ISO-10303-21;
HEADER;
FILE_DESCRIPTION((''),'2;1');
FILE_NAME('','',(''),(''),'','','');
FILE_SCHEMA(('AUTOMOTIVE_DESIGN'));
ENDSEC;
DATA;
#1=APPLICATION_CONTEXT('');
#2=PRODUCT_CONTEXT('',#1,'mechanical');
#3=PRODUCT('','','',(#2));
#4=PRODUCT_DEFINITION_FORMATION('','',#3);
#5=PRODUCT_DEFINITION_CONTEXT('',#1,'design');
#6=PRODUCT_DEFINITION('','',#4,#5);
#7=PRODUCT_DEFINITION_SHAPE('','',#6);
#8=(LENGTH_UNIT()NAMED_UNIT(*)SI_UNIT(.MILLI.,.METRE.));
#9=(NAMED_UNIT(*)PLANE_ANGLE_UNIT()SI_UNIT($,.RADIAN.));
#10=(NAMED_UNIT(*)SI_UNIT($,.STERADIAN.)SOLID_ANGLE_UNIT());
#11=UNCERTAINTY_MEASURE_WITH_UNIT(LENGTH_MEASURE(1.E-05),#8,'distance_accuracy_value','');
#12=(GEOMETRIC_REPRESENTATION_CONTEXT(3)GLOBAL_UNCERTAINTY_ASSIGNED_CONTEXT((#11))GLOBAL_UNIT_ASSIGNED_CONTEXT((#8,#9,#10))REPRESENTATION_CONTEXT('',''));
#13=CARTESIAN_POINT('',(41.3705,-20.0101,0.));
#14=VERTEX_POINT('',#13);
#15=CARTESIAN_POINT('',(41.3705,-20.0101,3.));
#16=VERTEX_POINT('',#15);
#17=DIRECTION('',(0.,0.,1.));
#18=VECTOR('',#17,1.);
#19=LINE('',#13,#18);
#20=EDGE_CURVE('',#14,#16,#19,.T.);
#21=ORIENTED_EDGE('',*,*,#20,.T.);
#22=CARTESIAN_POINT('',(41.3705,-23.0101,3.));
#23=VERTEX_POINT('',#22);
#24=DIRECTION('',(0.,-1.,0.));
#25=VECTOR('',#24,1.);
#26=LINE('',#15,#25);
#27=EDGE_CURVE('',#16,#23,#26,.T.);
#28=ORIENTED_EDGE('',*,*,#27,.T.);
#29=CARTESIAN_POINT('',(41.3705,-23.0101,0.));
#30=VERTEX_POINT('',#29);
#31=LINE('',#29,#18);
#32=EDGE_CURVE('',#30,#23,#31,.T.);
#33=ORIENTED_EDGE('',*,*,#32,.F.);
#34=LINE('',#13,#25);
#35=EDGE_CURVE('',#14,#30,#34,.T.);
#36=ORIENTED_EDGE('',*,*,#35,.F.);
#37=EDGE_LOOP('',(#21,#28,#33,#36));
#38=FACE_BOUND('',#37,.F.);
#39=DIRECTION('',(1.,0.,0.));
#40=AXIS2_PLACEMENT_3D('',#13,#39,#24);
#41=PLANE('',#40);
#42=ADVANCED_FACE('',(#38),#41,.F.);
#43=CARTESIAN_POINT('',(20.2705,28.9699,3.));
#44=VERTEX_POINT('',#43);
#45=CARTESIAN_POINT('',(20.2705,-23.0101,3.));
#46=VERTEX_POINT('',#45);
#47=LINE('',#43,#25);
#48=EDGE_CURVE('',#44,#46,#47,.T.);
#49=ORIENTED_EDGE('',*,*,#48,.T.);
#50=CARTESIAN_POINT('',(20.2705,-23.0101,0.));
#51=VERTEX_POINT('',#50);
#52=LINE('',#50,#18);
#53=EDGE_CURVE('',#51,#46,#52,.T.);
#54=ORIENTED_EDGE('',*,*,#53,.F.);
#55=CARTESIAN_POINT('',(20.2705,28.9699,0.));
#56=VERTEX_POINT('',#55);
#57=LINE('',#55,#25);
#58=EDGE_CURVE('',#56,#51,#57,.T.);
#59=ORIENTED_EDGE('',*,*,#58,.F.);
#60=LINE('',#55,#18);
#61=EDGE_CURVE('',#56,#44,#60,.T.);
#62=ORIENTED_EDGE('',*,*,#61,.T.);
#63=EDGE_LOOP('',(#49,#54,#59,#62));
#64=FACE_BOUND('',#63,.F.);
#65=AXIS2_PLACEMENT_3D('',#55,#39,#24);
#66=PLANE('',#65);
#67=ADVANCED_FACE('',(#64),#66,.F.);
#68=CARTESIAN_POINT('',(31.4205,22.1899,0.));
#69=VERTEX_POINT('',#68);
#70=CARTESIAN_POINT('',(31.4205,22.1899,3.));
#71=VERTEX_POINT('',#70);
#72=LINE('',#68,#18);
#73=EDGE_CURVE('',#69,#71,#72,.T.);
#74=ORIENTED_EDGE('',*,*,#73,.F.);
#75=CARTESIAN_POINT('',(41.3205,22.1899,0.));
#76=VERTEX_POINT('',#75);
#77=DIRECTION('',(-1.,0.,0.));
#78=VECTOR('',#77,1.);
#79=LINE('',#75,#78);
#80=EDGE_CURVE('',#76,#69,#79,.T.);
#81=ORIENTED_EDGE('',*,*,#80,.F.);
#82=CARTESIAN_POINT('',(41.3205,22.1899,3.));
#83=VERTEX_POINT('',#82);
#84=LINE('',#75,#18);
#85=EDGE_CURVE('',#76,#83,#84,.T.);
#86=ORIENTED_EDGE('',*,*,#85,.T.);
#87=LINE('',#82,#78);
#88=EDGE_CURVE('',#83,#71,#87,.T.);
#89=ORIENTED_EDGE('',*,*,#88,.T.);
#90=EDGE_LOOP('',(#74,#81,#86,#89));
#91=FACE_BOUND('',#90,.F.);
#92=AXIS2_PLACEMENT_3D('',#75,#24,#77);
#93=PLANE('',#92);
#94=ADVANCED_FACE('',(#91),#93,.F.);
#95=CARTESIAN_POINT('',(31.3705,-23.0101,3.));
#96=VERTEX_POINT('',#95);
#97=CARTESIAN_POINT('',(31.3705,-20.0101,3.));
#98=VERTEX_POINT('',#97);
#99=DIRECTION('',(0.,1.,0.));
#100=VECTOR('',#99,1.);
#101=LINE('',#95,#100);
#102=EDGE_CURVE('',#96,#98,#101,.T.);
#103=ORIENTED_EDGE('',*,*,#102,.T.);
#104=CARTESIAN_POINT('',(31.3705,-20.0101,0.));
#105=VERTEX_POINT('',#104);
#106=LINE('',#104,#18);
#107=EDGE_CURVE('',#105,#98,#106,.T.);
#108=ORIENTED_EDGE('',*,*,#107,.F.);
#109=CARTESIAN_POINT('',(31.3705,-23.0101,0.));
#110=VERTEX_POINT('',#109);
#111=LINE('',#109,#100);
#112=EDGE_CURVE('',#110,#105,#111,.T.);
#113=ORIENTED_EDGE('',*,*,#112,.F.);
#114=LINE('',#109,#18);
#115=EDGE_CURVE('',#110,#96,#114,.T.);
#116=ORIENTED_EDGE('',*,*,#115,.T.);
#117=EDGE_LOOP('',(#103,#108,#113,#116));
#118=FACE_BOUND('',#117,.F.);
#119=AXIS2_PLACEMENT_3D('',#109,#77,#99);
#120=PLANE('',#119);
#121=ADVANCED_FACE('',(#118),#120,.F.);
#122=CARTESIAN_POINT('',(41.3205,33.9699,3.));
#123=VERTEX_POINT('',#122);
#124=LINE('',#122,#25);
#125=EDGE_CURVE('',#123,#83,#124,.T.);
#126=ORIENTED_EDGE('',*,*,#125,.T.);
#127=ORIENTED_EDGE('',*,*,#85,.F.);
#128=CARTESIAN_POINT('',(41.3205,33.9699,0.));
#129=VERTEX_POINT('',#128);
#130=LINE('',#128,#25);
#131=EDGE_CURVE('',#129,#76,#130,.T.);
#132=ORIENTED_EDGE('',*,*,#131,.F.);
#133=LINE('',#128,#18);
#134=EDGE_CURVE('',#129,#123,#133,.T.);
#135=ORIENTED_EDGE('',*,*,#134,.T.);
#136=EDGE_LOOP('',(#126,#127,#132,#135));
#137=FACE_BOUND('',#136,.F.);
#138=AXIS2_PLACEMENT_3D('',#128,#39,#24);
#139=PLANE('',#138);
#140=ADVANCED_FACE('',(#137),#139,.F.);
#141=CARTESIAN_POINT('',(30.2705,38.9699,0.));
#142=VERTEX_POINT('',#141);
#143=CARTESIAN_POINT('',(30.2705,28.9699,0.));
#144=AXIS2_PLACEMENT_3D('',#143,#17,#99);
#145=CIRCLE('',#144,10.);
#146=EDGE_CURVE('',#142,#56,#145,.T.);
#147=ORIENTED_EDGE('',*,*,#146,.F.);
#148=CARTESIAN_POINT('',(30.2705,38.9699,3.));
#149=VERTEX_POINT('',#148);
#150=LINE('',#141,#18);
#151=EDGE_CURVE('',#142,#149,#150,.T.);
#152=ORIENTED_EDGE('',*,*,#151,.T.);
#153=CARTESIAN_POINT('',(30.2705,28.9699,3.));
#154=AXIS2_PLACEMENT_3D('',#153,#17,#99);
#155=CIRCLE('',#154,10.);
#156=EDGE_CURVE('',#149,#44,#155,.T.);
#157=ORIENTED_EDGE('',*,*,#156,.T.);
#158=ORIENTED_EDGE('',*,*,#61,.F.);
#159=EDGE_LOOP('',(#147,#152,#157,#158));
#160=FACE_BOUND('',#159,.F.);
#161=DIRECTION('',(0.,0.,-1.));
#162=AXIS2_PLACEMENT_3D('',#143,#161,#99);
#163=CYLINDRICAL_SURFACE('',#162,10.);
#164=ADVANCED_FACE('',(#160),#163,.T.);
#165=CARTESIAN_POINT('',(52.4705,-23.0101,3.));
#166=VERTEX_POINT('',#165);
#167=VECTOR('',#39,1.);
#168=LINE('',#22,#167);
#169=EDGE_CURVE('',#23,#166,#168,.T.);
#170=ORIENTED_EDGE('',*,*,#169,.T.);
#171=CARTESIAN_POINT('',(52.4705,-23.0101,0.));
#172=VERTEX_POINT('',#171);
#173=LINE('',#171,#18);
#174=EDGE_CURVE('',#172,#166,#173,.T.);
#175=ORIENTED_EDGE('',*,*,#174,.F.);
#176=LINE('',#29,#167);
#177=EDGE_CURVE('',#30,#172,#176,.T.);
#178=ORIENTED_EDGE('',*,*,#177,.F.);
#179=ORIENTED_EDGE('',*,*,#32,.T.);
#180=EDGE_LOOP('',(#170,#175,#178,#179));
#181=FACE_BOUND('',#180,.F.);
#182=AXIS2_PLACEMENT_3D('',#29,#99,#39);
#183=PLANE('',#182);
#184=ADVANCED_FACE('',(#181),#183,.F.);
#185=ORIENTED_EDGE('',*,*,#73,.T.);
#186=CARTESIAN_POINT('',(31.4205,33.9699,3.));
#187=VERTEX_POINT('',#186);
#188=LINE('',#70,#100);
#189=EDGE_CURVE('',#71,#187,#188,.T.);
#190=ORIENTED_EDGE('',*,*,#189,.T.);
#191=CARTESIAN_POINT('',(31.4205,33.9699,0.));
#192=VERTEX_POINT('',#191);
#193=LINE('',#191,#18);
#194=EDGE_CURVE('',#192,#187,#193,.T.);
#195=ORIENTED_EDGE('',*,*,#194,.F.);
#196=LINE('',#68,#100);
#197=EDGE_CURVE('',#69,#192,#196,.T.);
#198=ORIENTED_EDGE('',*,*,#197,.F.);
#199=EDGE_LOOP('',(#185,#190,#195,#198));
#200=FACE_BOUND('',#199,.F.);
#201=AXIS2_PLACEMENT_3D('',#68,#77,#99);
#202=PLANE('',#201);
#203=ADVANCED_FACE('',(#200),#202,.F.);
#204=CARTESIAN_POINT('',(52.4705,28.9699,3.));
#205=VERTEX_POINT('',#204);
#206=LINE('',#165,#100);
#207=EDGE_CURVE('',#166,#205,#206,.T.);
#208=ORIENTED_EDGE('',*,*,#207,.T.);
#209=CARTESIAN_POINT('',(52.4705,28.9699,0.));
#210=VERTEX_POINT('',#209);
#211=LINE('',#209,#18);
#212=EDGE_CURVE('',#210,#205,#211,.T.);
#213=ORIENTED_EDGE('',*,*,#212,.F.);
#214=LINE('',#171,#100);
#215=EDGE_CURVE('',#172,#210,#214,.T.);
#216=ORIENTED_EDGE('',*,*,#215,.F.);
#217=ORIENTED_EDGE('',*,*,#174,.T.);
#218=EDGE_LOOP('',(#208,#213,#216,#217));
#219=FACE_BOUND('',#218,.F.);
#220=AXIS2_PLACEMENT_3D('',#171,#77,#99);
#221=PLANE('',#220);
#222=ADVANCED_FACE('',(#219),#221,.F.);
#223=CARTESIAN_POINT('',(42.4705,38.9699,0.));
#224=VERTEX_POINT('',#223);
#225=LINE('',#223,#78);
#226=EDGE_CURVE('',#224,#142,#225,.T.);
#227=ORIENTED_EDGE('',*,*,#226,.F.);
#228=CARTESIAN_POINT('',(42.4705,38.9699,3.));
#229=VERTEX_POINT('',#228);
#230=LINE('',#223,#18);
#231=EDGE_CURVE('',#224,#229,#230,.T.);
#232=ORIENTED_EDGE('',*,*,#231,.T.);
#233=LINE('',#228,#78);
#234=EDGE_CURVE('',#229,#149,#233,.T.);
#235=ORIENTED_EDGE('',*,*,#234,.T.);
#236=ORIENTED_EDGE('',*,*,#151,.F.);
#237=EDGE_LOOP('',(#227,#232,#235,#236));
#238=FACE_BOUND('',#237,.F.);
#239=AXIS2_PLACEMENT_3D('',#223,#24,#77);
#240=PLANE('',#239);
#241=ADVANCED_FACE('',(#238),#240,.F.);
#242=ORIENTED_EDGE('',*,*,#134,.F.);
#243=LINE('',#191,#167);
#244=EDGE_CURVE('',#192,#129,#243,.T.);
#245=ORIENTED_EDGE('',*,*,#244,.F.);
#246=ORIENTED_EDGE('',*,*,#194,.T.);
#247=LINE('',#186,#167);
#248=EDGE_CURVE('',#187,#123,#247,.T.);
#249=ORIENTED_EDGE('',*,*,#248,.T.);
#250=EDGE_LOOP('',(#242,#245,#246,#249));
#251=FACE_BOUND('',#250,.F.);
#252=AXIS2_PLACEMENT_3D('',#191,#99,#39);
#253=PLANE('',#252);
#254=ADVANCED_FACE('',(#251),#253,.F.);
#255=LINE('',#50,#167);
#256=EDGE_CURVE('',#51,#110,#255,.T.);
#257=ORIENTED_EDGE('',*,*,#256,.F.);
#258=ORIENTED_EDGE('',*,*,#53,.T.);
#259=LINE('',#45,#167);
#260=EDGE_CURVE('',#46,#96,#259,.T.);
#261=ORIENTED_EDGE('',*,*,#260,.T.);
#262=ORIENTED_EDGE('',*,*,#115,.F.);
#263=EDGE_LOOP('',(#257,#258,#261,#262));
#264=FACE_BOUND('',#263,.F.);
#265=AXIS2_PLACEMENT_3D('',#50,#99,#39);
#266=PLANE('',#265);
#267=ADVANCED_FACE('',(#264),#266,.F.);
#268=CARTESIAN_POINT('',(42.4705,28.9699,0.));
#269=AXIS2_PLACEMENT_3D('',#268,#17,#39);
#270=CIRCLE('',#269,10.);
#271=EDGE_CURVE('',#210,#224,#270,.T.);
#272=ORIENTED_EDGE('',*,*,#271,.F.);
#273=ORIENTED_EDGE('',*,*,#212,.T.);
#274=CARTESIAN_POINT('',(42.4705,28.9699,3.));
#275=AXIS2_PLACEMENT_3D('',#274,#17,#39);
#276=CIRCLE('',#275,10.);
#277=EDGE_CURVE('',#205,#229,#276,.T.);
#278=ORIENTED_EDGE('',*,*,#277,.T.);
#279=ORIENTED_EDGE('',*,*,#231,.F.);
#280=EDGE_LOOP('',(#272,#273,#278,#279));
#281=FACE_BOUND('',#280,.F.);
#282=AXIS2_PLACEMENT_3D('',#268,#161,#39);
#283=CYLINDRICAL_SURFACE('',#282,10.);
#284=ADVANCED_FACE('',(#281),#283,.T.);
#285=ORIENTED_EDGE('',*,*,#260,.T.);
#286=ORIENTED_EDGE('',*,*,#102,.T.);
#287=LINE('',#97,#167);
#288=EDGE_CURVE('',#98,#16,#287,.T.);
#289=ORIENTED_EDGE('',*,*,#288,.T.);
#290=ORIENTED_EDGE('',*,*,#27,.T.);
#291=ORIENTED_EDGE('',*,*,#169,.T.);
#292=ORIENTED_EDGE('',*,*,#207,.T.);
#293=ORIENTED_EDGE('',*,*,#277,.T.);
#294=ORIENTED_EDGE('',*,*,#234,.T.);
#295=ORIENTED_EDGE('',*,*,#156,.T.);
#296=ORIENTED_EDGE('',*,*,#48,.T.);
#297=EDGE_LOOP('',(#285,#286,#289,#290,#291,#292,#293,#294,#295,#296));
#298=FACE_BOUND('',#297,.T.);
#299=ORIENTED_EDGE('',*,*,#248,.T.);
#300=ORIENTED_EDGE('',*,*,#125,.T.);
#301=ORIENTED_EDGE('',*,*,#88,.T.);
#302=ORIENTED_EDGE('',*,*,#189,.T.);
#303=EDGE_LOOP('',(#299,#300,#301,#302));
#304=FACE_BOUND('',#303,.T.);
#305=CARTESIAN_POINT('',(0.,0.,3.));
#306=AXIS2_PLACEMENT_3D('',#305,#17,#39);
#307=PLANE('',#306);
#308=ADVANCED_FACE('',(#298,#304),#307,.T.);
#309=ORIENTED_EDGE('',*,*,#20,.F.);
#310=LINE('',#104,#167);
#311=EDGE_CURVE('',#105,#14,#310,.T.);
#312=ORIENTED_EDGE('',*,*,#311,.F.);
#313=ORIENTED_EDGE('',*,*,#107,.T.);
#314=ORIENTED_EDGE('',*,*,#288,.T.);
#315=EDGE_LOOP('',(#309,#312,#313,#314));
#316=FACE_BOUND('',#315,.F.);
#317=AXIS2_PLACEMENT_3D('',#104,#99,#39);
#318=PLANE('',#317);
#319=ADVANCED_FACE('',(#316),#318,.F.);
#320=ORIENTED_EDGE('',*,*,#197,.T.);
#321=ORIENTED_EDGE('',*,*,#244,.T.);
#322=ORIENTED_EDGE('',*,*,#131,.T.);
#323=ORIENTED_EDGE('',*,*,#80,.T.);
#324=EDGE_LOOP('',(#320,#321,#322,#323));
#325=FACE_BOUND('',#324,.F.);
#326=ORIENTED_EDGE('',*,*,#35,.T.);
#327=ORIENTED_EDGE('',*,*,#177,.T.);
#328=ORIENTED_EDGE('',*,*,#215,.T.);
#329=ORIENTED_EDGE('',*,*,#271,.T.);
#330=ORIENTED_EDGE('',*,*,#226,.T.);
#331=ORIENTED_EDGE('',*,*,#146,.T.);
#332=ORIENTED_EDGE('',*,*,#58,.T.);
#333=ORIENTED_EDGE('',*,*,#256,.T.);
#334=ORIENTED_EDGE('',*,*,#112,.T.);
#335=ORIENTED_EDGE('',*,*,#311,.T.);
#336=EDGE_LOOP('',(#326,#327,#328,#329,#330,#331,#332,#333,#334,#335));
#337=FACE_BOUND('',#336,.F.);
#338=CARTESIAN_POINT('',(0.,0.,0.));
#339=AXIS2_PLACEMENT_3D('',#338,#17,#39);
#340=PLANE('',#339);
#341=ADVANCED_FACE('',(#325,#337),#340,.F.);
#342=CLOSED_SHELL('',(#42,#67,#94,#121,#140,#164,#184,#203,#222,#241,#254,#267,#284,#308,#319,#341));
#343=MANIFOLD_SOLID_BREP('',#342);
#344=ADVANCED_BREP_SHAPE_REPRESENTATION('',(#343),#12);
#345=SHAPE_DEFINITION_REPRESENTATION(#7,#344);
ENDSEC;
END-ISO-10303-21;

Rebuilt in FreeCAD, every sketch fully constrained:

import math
import FreeCAD as App
import Part
import Sketcher

V = App.Vector
Q = App.Units.Quantity


def add_polygon(sketch, points):
    """Adds a closed chain of lines whose ends are joined by coincident constraints."""
    first, n = sketch.GeometryCount, len(points)
    for a, b in zip(points, points[1:] + points[:1]):
        sketch.addGeometry(Part.LineSegment(App.Vector(*a, 0), App.Vector(*b, 0)), False)
    for i in range(n):
        sketch.addConstraint(Sketcher.Constraint("Coincident", first + i, 2, first + (i + 1) % n, 1))

doc = App.newDocument("Part")
body = doc.addObject("PartDesign::Body", "Body")

# Sketch on XY plane
sketch1 = body.newObject("Sketcher::SketchObject", "Sketch")
sketch1.AttachmentSupport = (doc.getObject("XY_Plane"), [""])
sketch1.MapMode = "FlatFace"
sketch1.addGeometry(Part.ArcOfCircle(Part.Circle(V(42.5, 29, 0), V(0, 0, 1), 10), math.radians(0), math.radians(90)), False)  # 0
sketch1.addGeometry(Part.LineSegment(V(42.5, 39, 0), V(30.3, 39, 0)), False)  # 1
sketch1.addGeometry(Part.ArcOfCircle(Part.Circle(V(30.3, 29, 0), V(0, 0, 1), 10), math.radians(90), math.radians(180)), False)  # 2
sketch1.addGeometry(Part.LineSegment(V(20.3, 29, 0), V(20.3, -23, 0)), False)  # 3
sketch1.addGeometry(Part.LineSegment(V(20.3, -23, 0), V(31.4, -23, 0)), False)  # 4
sketch1.addGeometry(Part.LineSegment(V(31.4, -23, 0), V(31.4, -20, 0)), False)  # 5
sketch1.addGeometry(Part.LineSegment(V(31.4, -20, 0), V(41.4, -20, 0)), False)  # 6
sketch1.addGeometry(Part.LineSegment(V(41.4, -20, 0), V(41.4, -23, 0)), False)  # 7
sketch1.addGeometry(Part.LineSegment(V(41.4, -23, 0), V(52.5, -23, 0)), False)  # 8
sketch1.addGeometry(Part.LineSegment(V(52.5, -23, 0), V(52.5, 29, 0)), False)  # 9
add_polygon(sketch1, [(31.4, 22.2), (31.4, 34), (41.3, 34), (41.3, 22.2)])  # lines 10-13
sketch1.addConstraint([
    Sketcher.Constraint("Tangent", 0, 2, 1, 1),
    Sketcher.Constraint("Tangent", 1, 2, 2, 1),
    Sketcher.Constraint("Tangent", 2, 2, 3, 1),
    Sketcher.Constraint("Coincident", 3, 2, 4, 1),
    Sketcher.Constraint("Coincident", 4, 2, 5, 1),
    Sketcher.Constraint("Coincident", 5, 2, 6, 1),
    Sketcher.Constraint("Coincident", 6, 2, 7, 1),
    Sketcher.Constraint("Coincident", 7, 2, 8, 1),
    Sketcher.Constraint("Coincident", 8, 2, 9, 1),
    Sketcher.Constraint("Tangent", 9, 2, 0, 1),
    Sketcher.Constraint("Horizontal", 1),
    Sketcher.Constraint("Vertical", 3),
    Sketcher.Constraint("Horizontal", 4),
    Sketcher.Constraint("Vertical", 5),
    Sketcher.Constraint("Horizontal", 6),
    Sketcher.Constraint("Vertical", 7),
    Sketcher.Constraint("Horizontal", 8),
    Sketcher.Constraint("Vertical", 9),
    Sketcher.Constraint("Vertical", 10),
    Sketcher.Constraint("Horizontal", 11),
    Sketcher.Constraint("Vertical", 12),
    Sketcher.Constraint("Horizontal", 13),
    Sketcher.Constraint("Equal", 0, 2),
    Sketcher.Constraint("Horizontal", 4, 2, 7, 2),
    Sketcher.Constraint("Equal", 4, 8),
    Sketcher.Constraint("Radius", 0, Q("10 mm")),
    Sketcher.Constraint("DistanceX", 6, 1, 6, 2, Q("10 mm")),
    Sketcher.Constraint("DistanceY", 5, 1, 5, 2, Q("3 mm")),
    Sketcher.Constraint("DistanceX", 4, 1, 4, 2, Q("11.1 mm")),
    Sketcher.Constraint("DistanceX", 11, 1, 11, 2, Q("9.9 mm")),
    Sketcher.Constraint("DistanceY", 10, 2, 1, 2, Q("5 mm")),
    Sketcher.Constraint("DistanceY", 10, 1, 10, 2, Q("11.78 mm")),
    Sketcher.Constraint("DistanceX", 2, 2, 10, 2, Q("11.15 mm")),
    Sketcher.Constraint("DistanceY", 3, 2, 3, 1, Q("51.98 mm")),
    Sketcher.Constraint("DistanceY", -1, 1, 0, 3, Q("28.97 mm")),
    Sketcher.Constraint("DistanceX", -1, 1, 0, 3, Q("42.4705 mm")),
])
pad1 = body.newObject("PartDesign::Pad", "Pad")
pad1.Profile = sketch1
pad1.Length = 3

doc.recompute()
